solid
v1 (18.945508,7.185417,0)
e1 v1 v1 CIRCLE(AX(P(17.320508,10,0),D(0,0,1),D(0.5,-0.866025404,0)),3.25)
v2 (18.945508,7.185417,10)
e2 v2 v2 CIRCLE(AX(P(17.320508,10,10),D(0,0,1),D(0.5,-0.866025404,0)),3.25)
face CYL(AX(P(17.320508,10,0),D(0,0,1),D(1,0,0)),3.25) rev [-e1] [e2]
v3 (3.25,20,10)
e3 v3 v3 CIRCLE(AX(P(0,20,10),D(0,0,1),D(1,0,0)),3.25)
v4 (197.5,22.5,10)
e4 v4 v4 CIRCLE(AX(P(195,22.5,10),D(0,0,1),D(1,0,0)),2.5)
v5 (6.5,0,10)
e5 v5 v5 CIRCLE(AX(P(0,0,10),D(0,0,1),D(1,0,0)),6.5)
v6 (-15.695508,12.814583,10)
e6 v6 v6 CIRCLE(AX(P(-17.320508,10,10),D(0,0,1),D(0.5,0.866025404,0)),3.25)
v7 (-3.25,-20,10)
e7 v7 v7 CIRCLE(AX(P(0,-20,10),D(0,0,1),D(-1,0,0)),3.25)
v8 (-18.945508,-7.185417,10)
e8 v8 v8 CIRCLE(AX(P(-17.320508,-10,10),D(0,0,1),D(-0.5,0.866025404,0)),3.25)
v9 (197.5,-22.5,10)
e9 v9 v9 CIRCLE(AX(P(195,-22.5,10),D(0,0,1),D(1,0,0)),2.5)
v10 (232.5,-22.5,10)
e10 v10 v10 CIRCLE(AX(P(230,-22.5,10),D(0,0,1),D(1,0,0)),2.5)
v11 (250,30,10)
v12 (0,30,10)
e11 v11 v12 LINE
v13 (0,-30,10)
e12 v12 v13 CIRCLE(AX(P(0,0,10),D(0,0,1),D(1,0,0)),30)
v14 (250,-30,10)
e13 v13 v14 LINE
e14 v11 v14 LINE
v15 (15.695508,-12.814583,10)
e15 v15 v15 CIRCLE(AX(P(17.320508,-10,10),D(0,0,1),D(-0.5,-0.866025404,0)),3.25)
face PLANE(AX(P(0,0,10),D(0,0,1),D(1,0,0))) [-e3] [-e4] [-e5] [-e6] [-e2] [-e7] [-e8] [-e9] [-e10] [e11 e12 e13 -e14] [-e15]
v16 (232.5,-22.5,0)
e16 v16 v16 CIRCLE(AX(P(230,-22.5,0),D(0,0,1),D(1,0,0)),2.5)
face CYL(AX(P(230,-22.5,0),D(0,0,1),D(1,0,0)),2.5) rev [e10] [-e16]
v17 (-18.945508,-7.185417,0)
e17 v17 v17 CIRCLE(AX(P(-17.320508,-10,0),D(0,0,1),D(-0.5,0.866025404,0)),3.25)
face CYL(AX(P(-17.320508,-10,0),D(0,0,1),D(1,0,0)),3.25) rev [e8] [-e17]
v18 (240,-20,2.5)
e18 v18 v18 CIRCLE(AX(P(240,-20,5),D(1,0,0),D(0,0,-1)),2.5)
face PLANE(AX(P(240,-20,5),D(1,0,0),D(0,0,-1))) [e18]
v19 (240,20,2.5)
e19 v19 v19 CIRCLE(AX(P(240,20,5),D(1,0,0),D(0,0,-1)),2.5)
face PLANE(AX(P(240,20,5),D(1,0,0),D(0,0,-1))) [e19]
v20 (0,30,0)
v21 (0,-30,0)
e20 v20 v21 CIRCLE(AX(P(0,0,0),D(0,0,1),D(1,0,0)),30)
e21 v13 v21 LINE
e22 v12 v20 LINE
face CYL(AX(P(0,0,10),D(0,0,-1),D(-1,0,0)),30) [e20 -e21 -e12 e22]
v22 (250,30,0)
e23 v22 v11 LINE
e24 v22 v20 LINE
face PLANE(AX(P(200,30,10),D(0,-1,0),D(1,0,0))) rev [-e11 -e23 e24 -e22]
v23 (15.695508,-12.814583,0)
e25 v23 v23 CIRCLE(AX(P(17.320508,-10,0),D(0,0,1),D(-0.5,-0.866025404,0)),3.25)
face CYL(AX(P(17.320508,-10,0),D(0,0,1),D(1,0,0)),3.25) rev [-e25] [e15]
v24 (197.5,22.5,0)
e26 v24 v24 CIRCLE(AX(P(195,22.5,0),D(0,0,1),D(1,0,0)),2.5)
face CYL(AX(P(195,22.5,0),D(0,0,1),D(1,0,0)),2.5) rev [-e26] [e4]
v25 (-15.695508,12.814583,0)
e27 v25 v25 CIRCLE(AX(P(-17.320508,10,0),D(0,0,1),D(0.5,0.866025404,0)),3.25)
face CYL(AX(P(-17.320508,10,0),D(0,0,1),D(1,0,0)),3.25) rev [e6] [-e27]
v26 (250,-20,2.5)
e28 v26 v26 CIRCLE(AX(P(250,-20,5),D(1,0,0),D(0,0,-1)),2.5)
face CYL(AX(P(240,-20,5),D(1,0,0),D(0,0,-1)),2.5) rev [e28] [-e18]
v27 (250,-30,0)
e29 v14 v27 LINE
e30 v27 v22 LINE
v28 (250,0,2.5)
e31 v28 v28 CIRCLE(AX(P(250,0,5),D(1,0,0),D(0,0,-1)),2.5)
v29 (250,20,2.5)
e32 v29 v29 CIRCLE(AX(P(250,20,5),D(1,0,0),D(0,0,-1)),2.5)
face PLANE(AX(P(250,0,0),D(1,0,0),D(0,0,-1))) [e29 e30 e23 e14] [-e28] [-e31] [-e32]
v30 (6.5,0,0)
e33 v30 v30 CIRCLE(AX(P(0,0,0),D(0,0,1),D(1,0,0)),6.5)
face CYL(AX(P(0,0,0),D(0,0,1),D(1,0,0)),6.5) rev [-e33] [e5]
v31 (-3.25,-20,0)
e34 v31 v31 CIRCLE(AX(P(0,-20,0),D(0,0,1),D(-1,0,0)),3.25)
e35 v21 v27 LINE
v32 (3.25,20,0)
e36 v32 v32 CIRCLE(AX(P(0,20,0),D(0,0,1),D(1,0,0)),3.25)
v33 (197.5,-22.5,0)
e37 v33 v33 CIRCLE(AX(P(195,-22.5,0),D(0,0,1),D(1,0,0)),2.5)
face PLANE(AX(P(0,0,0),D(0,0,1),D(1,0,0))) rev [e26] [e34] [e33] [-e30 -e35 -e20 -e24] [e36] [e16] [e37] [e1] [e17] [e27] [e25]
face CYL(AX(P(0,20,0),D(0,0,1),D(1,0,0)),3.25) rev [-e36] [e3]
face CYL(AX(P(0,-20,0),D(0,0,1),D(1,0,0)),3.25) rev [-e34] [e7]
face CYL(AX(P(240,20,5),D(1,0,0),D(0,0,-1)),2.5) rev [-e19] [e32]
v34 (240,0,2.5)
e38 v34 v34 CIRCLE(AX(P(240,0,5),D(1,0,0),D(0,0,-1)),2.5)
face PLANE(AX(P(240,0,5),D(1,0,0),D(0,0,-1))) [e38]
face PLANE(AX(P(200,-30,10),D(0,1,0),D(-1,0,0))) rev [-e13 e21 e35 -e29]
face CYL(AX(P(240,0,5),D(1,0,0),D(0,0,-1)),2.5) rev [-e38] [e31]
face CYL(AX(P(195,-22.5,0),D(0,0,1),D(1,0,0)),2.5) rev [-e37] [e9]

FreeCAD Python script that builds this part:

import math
import FreeCAD as App
import Part
import Sketcher
from FreeCAD import Vector

doc = App.newDocument("Part")
params = doc.addObject("Spreadsheet::Sheet", "Params")
for row, (alias, value) in enumerate([
    ("sketch1_radius", "30 mm"),
    ("sketch1_width", "200 mm"),
    ("pad1_length", "10 mm"),
    ("sketch2_diameter", "35 mm"),
    ("sketch3_diameter", "5 mm"),
    ("pocket2_length", "10 mm"),
    ("sketch4_width", "60 mm"),
    ("sketch4_height", "10 mm"),
    ("pad2_length", "50 mm"),
    ("sketch5_diameter", "5 mm"),
    ("pocket3_length", "10 mm"),
    ("sketch6_diameter", "5 mm"),
    ("sketch7_diameter", "35 mm"),
    ("sketch7_diameter2", "13 mm"),
    ("pad3_length", "10 mm"),
    ("sketch8_diameter", "6.5 mm"),
    ("pocket5_length", "10 mm"),
], start=1):
    params.set(f"A{row}", alias)
    params.set(f"B{row}", "=" + value)
    params.setAlias(f"B{row}", alias)

body = doc.addObject("PartDesign::Body", "Body")

# Sketch on XY plane
sketch1 = body.newObject("Sketcher::SketchObject", "Sketch")
sketch1.AttachmentSupport = (doc.getObject("XY_Plane"), [""])
sketch1.MapMode = "FlatFace"
sketch1.addGeometry([
    Part.LineSegment(Vector(200, -30, 0), Vector(200, 30, 0)),
    Part.LineSegment(Vector(200, 30, 0), Vector(0, 30, 0)),
    Part.ArcOfCircle(Part.Circle(Vector(0, 0, 0), Vector(0, 0, 1), 30), math.radians(90), math.radians(270)),
    Part.LineSegment(Vector(0, -30, 0), Vector(200, -30, 0)),
], False)
sketch1.addConstraint([
    Sketcher.Constraint("Coincident", 0, 2, 1, 1),
    Sketcher.Constraint("Tangent", 1, 2, 2, 1),
    Sketcher.Constraint("Tangent", 2, 2, 3, 1),
    Sketcher.Constraint("Coincident", 3, 2, 0, 1),
    Sketcher.Constraint("Vertical", 0),
    Sketcher.Constraint("Horizontal", 1),
    Sketcher.Constraint("Horizontal", 3),
    Sketcher.Constraint("Coincident", 2, 3, -1, 1),
    Sketcher.Constraint("Radius", 2, 30.0),
    Sketcher.Constraint("DistanceX", 1, 2, 1, 1, 200.0),
])
sketch1.setExpression("Constraints[8]", "Params.sketch1_radius")
sketch1.setExpression("Constraints[9]", "Params.sketch1_width")
pad1 = body.newObject("PartDesign::Pad", "Pad")
pad1.Profile = sketch1
pad1.setExpression("Length", "Params.pad1_length")

# Sketch on XY plane
sketch2 = body.newObject("Sketcher::SketchObject", "Sketch001")
sketch2.AttachmentSupport = (doc.getObject("XY_Plane"), [""])
sketch2.MapMode = "FlatFace"
sketch2.AttachmentOffset = App.Placement(Vector(0, 0, 10), App.Rotation())
sketch2.addGeometry(Part.Circle(Vector(0, 0, 0), Vector(0, 0, 1), 18), False)
sketch2.addConstraint([
    Sketcher.Constraint("Coincident", 0, 3, -1, 1),
    Sketcher.Constraint("Diameter", 0, 35.0),
])
sketch2.setExpression("Constraints[1]", "Params.sketch2_diameter")
pocket1 = body.newObject("PartDesign::Pocket", "Pocket")
pocket1.Profile = sketch2
pocket1.Type = "ThroughAll"

# Sketch on XY plane
sketch3 = body.newObject("Sketcher::SketchObject", "Sketch002")
sketch3.AttachmentSupport = (doc.getObject("XY_Plane"), [""])
sketch3.MapMode = "FlatFace"
sketch3.AttachmentOffset = App.Placement(Vector(0, 0, 10), App.Rotation())
sketch3.addGeometry([
    Part.Circle(Vector(195, 22.5, 0), Vector(0, 0, 1), 2.5),
    Part.Circle(Vector(195, -22.5, 0), Vector(0, 0, 1), 2.5),
], False)
sketch3.addConstraint([
    Sketcher.Constraint("Equal", 0, 1),
    Sketcher.Constraint("Symmetric", 0, 3, 1, 3, -1),
    Sketcher.Constraint("Diameter", 0, 5.0),
    Sketcher.Constraint("DistanceX", -1, 1, 0, 3, 195.0),
    Sketcher.Constraint("DistanceY", 1, 3, 0, 3, 45.0),
])
sketch3.setExpression("Constraints[2]", "Params.sketch3_diameter")
pocket2 = body.newObject("PartDesign::Pocket", "Pocket001")
pocket2.Profile = sketch3
pocket2.setExpression("Length", "Params.pocket2_length")

# Sketch on YZ plane
sketch4 = body.newObject("Sketcher::SketchObject", "Sketch003")
sketch4.AttachmentSupport = (doc.getObject("YZ_Plane"), [""])
sketch4.MapMode = "FlatFace"
sketch4.AttachmentOffset = App.Placement(Vector(0, 0, 200), App.Rotation())
sketch4.addGeometry([
    Part.LineSegment(Vector(30, 10, 0), Vector(-30, 10, 0)),
    Part.LineSegment(Vector(-30, 10, 0), Vector(-30, 0, 0)),
    Part.LineSegment(Vector(-30, 0, 0), Vector(30, 0, 0)),
    Part.LineSegment(Vector(30, 0, 0), Vector(30, 10, 0)),
], False)
sketch4.addConstraint([
    Sketcher.Constraint("Coincident", 0, 2, 1, 1),
    Sketcher.Constraint("Coincident", 1, 2, 2, 1),
    Sketcher.Constraint("Coincident", 2, 2, 3, 1),
    Sketcher.Constraint("Coincident", 3, 2, 0, 1),
    Sketcher.Constraint("Horizontal", 0),
    Sketcher.Constraint("Vertical", 1),
    Sketcher.Constraint("Horizontal", 2),
    Sketcher.Constraint("Vertical", 3),
    Sketcher.Constraint("Symmetric", 1, 2, 2, 2, -1, 1),
    Sketcher.Constraint("DistanceX", 0, 2, 0, 1, 60.0),
    Sketcher.Constraint("DistanceY", 1, 2, 1, 1, 10.0),
])
sketch4.setExpression("Constraints[9]", "Params.sketch4_width")
sketch4.setExpression("Constraints[10]", "Params.sketch4_height")
pad2 = body.newObject("PartDesign::Pad", "Pad001")
pad2.Profile = sketch4
pad2.setExpression("Length", "Params.pad2_length")

# Sketch on YZ plane
sketch5 = body.newObject("Sketcher::SketchObject", "Sketch004")
sketch5.AttachmentSupport = (doc.getObject("YZ_Plane"), [""])
sketch5.MapMode = "FlatFace"
sketch5.AttachmentOffset = App.Placement(Vector(0, 0, 250), App.Rotation())
sketch5.addGeometry([
    Part.Circle(Vector(0, 5, 0), Vector(0, 0, 1), 2.5),
    Part.Circle(Vector(20, 5, 0), Vector(0, 0, 1), 2.5),
    Part.Circle(Vector(-20, 5, 0), Vector(0, 0, 1), 2.5),
], False)
sketch5.addConstraint([
    Sketcher.Constraint("Equal", 0, 1),
    Sketcher.Constraint("Equal", 1, 2),
    Sketcher.Constraint("Symmetric", 1, 3, 2, 3, -2),
    Sketcher.Constraint("PointOnObject", 0, 3, -2),
    Sketcher.Constraint("Horizontal", 0, 3, 1, 3),
    Sketcher.Constraint("Diameter", 0, 5.0),
    Sketcher.Constraint("DistanceY", -1, 1, 0, 3, 5.0),
    Sketcher.Constraint("DistanceX", -1, 1, 1, 3, 20.0),
])
sketch5.setExpression("Constraints[5]", "Params.sketch5_diameter")
pocket3 = body.newObject("PartDesign::Pocket", "Pocket002")
pocket3.Profile = sketch5
pocket3.setExpression("Length", "Params.pocket3_length")

# Sketch on XY plane
sketch6 = body.newObject("Sketcher::SketchObject", "Sketch005")
sketch6.AttachmentSupport = (doc.getObject("XY_Plane"), [""])
sketch6.MapMode = "FlatFace"
sketch6.AttachmentOffset = App.Placement(Vector(0, 0, 10), App.Rotation())
sketch6.addGeometry(Part.Circle(Vector(230, -22.5, 0), Vector(0, 0, 1), 2.5), False)
sketch6.addConstraint([
    Sketcher.Constraint("Diameter", 0, 5.0),
    Sketcher.Constraint("DistanceX", -1, 1, 0, 3, 230.0),
    Sketcher.Constraint("DistanceY", 0, 3, -1, 1, 22.5),
])
sketch6.setExpression("Constraints[0]", "Params.sketch6_diameter")
pocket4 = body.newObject("PartDesign::Pocket", "Pocket003")
pocket4.Profile = sketch6
pocket4.Type = "ThroughAll"

# Sketch on XY plane
sketch7 = body.newObject("Sketcher::SketchObject", "Sketch006")
sketch7.AttachmentSupport = (doc.getObject("XY_Plane"), [""])
sketch7.MapMode = "FlatFace"
sketch7.AttachmentOffset = App.Placement(Vector(0, 0, 10), App.Rotation())
sketch7.addGeometry([
    Part.Circle(Vector(0, 0, 0), Vector(0, 0, 1), 18),
    Part.Circle(Vector(0, 0, 0), Vector(0, 0, 1), 6),
], False)
sketch7.addConstraint([
    Sketcher.Constraint("Coincident", 0, 3, -1, 1),
    Sketcher.Constraint("Coincident", 1, 3, -1, 1),
    Sketcher.Constraint("Diameter", 0, 35.0),
    Sketcher.Constraint("Diameter", 1, 13.0),
])
sketch7.setExpression("Constraints[2]", "Params.sketch7_diameter")
sketch7.setExpression("Constraints[3]", "Params.sketch7_diameter2")
pad3 = body.newObject("PartDesign::Pad", "Pad002")
pad3.Profile = sketch7
pad3.setExpression("Length", "Params.pad3_length")
pad3.Reversed = True

# Sketch on XY plane
sketch8 = body.newObject("Sketcher::SketchObject", "Sketch007")
sketch8.AttachmentSupport = (doc.getObject("XY_Plane"), [""])
sketch8.MapMode = "FlatFace"
sketch8.AttachmentOffset = App.Placement(Vector(0, 0, 10), App.Rotation())
sketch8.addGeometry(Part.Circle(Vector(0, 20, 0), Vector(0, 0, 1), 3.2), False)
sketch8.addConstraint([
    Sketcher.Constraint("PointOnObject", 0, 3, -2),
    Sketcher.Constraint("Diameter", 0, 6.5),
    Sketcher.Constraint("DistanceY", -1, 1, 0, 3, 20.0),
])
sketch8.setExpression("Constraints[1]", "Params.sketch8_diameter")
pocket5 = body.newObject("PartDesign::Pocket", "Pocket004")
pocket5.Profile = sketch8
pocket5.setExpression("Length", "Params.pocket5_length")
doc.recompute()

polarpattern = body.newObject("PartDesign::PolarPattern", "PolarPattern")
polarpattern.Originals = [pocket5]
polarpattern.Axis = (doc.getObject("Z_Axis"), [""])
polarpattern.Angle = 360
polarpattern.Occurrences = 6
body.Tip = polarpattern

doc.recompute()
